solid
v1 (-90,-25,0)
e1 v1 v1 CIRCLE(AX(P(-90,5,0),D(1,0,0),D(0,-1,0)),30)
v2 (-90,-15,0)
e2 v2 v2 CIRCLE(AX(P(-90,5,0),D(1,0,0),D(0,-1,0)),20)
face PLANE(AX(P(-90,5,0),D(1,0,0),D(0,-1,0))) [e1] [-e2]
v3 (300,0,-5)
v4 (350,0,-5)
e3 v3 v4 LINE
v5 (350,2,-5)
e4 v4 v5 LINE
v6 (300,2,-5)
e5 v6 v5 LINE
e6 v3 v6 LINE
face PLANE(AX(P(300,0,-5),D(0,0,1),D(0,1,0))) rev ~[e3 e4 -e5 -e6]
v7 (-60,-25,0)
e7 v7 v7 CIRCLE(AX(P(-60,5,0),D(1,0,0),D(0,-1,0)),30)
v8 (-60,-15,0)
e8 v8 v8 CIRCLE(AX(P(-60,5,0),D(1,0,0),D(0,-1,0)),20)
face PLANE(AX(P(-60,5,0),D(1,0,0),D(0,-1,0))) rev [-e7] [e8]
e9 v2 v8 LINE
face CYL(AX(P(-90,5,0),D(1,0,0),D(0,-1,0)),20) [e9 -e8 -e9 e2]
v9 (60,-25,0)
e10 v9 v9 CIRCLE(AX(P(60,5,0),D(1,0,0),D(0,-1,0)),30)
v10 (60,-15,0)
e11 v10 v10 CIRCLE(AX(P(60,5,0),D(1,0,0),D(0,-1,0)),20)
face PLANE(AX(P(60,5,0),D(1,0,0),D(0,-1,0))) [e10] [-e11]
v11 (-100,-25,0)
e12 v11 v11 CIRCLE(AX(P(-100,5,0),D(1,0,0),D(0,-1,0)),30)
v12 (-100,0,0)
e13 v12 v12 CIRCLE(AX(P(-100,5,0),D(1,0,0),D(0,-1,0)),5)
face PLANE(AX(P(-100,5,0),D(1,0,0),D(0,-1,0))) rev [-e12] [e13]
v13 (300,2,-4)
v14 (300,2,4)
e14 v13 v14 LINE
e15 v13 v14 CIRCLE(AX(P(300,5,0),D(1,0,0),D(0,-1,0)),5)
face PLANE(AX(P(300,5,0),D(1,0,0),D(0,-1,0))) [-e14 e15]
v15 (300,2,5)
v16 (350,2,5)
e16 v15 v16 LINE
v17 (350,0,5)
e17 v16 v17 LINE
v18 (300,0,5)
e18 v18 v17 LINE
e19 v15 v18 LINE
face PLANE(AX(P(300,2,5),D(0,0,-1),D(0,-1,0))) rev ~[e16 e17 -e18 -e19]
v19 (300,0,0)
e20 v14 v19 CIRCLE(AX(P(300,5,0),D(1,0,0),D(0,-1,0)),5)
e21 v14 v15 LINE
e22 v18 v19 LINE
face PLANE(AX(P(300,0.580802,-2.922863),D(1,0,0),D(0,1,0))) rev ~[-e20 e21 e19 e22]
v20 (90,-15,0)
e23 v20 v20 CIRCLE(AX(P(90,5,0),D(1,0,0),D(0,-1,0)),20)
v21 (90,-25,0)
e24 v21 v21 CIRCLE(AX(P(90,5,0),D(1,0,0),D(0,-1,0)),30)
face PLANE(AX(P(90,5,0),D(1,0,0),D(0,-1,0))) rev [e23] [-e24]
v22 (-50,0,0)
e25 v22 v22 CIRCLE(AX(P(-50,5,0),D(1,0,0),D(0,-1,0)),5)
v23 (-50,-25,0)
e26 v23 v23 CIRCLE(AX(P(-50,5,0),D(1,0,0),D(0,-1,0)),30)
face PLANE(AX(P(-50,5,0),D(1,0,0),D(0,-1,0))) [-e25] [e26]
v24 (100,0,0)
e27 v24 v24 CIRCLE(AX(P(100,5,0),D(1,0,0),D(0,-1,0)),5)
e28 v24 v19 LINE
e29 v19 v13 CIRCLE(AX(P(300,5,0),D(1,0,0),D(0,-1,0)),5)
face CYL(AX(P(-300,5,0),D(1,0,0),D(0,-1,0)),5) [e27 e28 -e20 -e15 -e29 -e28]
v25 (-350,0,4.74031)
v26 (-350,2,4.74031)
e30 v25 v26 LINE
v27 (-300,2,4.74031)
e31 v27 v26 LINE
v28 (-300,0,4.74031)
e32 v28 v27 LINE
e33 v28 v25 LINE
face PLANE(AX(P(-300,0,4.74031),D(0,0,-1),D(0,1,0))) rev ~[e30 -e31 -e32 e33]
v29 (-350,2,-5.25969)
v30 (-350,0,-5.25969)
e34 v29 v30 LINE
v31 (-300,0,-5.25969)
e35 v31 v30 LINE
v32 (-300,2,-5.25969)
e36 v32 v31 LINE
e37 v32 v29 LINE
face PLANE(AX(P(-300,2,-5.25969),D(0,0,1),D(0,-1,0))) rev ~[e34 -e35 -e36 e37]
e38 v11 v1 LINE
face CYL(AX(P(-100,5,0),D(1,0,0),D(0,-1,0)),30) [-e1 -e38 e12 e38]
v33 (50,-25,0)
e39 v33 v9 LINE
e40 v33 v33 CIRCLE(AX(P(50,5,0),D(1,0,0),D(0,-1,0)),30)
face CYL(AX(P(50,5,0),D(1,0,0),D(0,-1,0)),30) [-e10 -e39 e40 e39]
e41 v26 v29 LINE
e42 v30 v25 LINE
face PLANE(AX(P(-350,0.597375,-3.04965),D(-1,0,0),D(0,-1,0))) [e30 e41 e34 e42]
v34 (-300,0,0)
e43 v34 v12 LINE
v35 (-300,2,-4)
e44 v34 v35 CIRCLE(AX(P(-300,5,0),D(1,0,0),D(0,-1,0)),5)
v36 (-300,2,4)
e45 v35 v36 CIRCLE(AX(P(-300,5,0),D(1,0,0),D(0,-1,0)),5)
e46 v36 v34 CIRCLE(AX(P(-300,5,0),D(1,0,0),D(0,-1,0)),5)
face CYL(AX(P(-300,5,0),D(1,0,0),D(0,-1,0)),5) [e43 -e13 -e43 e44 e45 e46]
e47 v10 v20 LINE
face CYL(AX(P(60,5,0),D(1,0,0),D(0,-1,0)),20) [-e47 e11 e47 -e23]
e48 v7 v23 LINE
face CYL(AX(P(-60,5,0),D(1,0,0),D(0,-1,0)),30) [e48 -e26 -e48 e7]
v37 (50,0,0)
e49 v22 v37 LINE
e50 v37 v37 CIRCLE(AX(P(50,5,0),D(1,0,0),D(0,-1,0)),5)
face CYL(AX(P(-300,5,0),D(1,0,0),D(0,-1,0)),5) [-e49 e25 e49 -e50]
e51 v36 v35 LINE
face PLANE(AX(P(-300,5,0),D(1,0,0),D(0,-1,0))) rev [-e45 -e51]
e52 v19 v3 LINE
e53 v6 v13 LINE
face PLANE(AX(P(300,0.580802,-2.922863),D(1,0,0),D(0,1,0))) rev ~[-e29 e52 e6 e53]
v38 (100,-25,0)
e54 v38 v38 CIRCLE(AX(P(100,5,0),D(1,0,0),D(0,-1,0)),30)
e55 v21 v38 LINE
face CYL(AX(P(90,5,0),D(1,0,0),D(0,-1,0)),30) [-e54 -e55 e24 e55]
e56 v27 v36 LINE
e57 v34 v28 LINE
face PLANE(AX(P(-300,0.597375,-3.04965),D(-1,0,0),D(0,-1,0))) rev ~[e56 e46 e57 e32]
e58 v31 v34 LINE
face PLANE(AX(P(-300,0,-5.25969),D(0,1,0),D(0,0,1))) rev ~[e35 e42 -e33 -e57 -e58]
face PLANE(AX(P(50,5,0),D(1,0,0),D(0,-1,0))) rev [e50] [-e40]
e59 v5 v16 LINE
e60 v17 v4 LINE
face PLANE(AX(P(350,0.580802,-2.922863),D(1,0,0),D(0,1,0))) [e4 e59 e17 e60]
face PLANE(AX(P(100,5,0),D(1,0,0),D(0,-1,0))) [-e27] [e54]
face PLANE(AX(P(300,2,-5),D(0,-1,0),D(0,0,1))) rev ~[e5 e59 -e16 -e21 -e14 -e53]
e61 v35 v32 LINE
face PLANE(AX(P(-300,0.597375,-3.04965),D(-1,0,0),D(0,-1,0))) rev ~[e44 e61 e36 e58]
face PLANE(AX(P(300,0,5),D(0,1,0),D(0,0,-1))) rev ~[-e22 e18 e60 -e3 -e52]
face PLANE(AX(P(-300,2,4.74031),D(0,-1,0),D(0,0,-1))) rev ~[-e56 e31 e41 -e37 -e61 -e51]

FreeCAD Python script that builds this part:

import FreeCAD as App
import Part
import Sketcher
from FreeCAD import Vector


def add_polygon(sketch, points):
    """Adds a closed chain of lines whose ends are joined by coincident constraints."""
    first, n = sketch.GeometryCount, len(points)
    for a, b in zip(points, points[1:] + points[:1]):
        sketch.addGeometry(Part.LineSegment(App.Vector(*a, 0), App.Vector(*b, 0)), False)
    for i in range(n):
        sketch.addConstraint(Sketcher.Constraint("Coincident", first + i, 2, first + (i + 1) % n, 1))

doc = App.newDocument("Part")
body = doc.addObject("PartDesign::Body", "Body")

# Sketch on XY plane
sketch1 = body.newObject("Sketcher::SketchObject", "Sketch")
sketch1.AttachmentSupport = (doc.getObject("XY_Plane"), [""])
sketch1.MapMode = "FlatFace"
add_polygon(sketch1, [(-300, 5), (-300, 0), (-100, 0), (-100, -25), (-90, -25), (-90, -15), (-60, -15), (-60, -25), (-50, -25), (-50, 0), (50, 0), (50, -25), (60, -25), (60, -15), (90, -15), (90, -25), (100, -25), (100, 0), (300, 0), (300, 5)])  # lines 0-19
sketch1.addGeometry(Part.LineSegment(Vector(-300, 5, 0), Vector(300, 5, 0)), True)  # axis
sketch1.addConstraint([
    Sketcher.Constraint("Vertical", 0),
    Sketcher.Constraint("Horizontal", 1),
    Sketcher.Constraint("Vertical", 2),
    Sketcher.Constraint("Horizontal", 3),
    Sketcher.Constraint("Vertical", 4),
    Sketcher.Constraint("Horizontal", 5),
    Sketcher.Constraint("Vertical", 6),
    Sketcher.Constraint("Horizontal", 7),
    Sketcher.Constraint("Vertical", 8),
    Sketcher.Constraint("Horizontal", 9),
    Sketcher.Constraint("Vertical", 10),
    Sketcher.Constraint("Horizontal", 11),
    Sketcher.Constraint("Vertical", 12),
    Sketcher.Constraint("Horizontal", 13),
    Sketcher.Constraint("Vertical", 14),
    Sketcher.Constraint("Horizontal", 15),
    Sketcher.Constraint("Vertical", 16),
    Sketcher.Constraint("Horizontal", 17),
    Sketcher.Constraint("Vertical", 18),
    Sketcher.Constraint("Horizontal", 19),
    Sketcher.Constraint("Horizontal", 20),
    Sketcher.Constraint("Coincident", 20, 1, 19, 2),
    Sketcher.Constraint("Symmetric", 8, 2, 9, 2, -1, 1),
    Sketcher.Constraint("Symmetric", 1, 2, 16, 2, -1, 1),
    Sketcher.Constraint("Symmetric", 6, 2, 11, 2, -2),
    Sketcher.Constraint("Symmetric", 4, 2, 13, 2, -2),
    Sketcher.Constraint("Symmetric", 0, 2, 17, 2, -2),
    Sketcher.Constraint("Horizontal", 3, 2, 6, 2),
    Sketcher.Constraint("Horizontal", 11, 2, 14, 2),
    Sketcher.Constraint("Vertical", 17, 2, 20, 2),
    Sketcher.Constraint("Equal", 3, 7),
    Sketcher.Constraint("Equal", 15, 4),
    Sketcher.Constraint("DistanceX", 1, 1, 1, 2, 200.0),
    Sketcher.Constraint("DistanceX", 3, 1, 3, 2, 10.0),
    Sketcher.Constraint("DistanceX", 5, 1, 5, 2, 30.0),
    Sketcher.Constraint("DistanceX", 9, 1, 9, 2, 100.0),
    Sketcher.Constraint("DistanceY", 0, 2, 0, 1, 5.0),
    Sketcher.Constraint("DistanceY", 2, 2, 2, 1, 25.0),
])
revolution = body.newObject("PartDesign::Revolution", "Revolution")
revolution.Profile = sketch1
revolution.ReferenceAxis = (sketch1, ["Axis0"])
revolution.Angle = 360

# Sketch on YZ plane
sketch2 = body.newObject("Sketcher::SketchObject", "Sketch001")
sketch2.AttachmentSupport = (doc.getObject("YZ_Plane"), [""])
sketch2.MapMode = "FlatFace"
sketch2.AttachmentOffset = App.Placement(Vector(0, 0, -300), App.Rotation())
add_polygon(sketch2, [(0, -5.3), (0, 4.7), (2, 4.7), (2, -5.3)])  # lines 0-3
sketch2.addConstraint([
    Sketcher.Constraint("Vertical", 0),
    Sketcher.Constraint("Horizontal", 1),
    Sketcher.Constraint("Vertical", 2),
    Sketcher.Constraint("Horizontal", 3),
    Sketcher.Constraint("PointOnObject", 0, 2, -2),
    Sketcher.Constraint("DistanceX", 1, 1, 1, 2, 2.0),
    Sketcher.Constraint("DistanceY", 0, 1, 0, 2, 10.0),
    Sketcher.Constraint("DistanceY", -1, 1, 0, 2, 4.74031),
])
pad1 = body.newObject("PartDesign::Pad", "Pad")
pad1.Profile = sketch2
pad1.Length = 50
pad1.Reversed = True

# Sketch on YZ plane
sketch3 = body.newObject("Sketcher::SketchObject", "Sketch002")
sketch3.AttachmentSupport = (doc.getObject("YZ_Plane"), [""])
sketch3.MapMode = "FlatFace"
sketch3.AttachmentOffset = App.Placement(Vector(0, 0, 300), App.Rotation())
add_polygon(sketch3, [(0, -5), (2, -5), (2, 5), (0, 5)])  # lines 0-3
sketch3.addConstraint([
    Sketcher.Constraint("Horizontal", 0),
    Sketcher.Constraint("Vertical", 1),
    Sketcher.Constraint("Horizontal", 2),
    Sketcher.Constraint("Vertical", 3),
    Sketcher.Constraint("Symmetric", 2, 2, 3, 2, -1, 1),
    Sketcher.Constraint("DistanceX", 0, 1, 0, 2, 2.0),
    Sketcher.Constraint("DistanceY", 1, 1, 1, 2, 10.0),
])
pad2 = body.newObject("PartDesign::Pad", "Pad001")
pad2.Profile = sketch3
pad2.Length = 50

doc.recompute()
